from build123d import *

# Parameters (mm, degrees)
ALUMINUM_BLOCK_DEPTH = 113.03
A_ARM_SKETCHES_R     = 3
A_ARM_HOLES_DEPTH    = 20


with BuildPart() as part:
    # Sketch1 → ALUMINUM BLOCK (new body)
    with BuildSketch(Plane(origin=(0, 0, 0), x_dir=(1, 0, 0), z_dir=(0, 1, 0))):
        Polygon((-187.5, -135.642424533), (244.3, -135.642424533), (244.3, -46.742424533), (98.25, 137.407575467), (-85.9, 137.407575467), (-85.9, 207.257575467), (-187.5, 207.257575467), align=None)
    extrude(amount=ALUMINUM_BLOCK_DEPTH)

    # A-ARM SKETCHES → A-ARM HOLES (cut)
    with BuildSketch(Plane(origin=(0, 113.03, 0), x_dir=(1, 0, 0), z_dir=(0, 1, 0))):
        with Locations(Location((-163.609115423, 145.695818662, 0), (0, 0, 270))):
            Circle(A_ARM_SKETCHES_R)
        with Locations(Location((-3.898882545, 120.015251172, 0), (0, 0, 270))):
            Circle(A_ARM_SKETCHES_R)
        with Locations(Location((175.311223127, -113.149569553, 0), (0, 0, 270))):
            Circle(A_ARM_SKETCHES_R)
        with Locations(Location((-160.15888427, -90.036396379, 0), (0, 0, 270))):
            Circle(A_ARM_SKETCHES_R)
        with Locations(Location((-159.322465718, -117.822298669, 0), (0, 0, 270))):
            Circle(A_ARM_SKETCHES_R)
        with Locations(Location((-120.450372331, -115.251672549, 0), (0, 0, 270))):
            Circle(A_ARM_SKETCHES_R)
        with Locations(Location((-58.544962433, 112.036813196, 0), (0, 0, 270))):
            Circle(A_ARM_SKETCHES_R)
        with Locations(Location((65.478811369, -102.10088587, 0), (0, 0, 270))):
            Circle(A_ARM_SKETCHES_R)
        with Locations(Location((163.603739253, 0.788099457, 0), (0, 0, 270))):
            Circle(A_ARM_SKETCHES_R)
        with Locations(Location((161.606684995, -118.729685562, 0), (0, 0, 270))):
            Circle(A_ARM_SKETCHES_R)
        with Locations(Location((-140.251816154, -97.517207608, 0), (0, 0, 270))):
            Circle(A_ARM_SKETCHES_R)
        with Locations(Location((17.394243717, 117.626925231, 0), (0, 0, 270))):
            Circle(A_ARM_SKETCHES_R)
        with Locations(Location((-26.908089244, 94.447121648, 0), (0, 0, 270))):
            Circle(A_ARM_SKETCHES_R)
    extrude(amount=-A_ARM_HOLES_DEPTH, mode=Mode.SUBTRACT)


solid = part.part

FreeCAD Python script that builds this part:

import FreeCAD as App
import Part
import Sketcher

V = App.Vector
Q = App.Units.Quantity


def add_polygon(sketch, points):
    """Adds a closed chain of lines whose ends are joined by coincident constraints."""
    first, n = sketch.GeometryCount, len(points)
    for a, b in zip(points, points[1:] + points[:1]):
        sketch.addGeometry(Part.LineSegment(App.Vector(*a, 0), App.Vector(*b, 0)), False)
    for i in range(n):
        sketch.addConstraint(Sketcher.Constraint("Coincident", first + i, 2, first + (i + 1) % n, 1))

doc = App.newDocument("Part")
body = doc.addObject("PartDesign::Body", "Body")

sketch1 = body.newObject("Sketcher::SketchObject", "Sketch")
sketch1.AttachmentSupport = (doc.getObject("XZ_Plane"), [""])
sketch1.MapMode = "FlatFace"
add_polygon(sketch1, [(-188, 136), (244, 136), (244, 47), (98, -137), (-86, -137), (-86, -207), (-188, -207)])
sketch1.addConstraint([
    Sketcher.Constraint("Horizontal", 0),
    Sketcher.Constraint("Vertical", 1),
    Sketcher.Constraint("Horizontal", 3),
    Sketcher.Constraint("Vertical", 4),
    Sketcher.Constraint("Horizontal", 5),
    Sketcher.Constraint("Vertical", 6),
    Sketcher.Constraint("DistanceX", 0, 1, 0, 2, Q("17 in")),
    Sketcher.Constraint("DistanceX", 5, 2, 5, 1, Q("4 in")),
    Sketcher.Constraint("DistanceY", 1, 2, 1, 1, Q("3.5 in")),
    Sketcher.Constraint("DistanceY", 6, 1, 6, 2, Q("13.5 in")),
    Sketcher.Constraint("DistanceX", 3, 2, 3, 1, Q("7.25 in")),
    Sketcher.Constraint("DistanceY", 4, 2, 4, 1, Q("2.75 in")),
    Sketcher.Constraint("DistanceX", -1, 1, 0, 2, 244.3),
    Sketcher.Constraint("DistanceY", -1, 1, 0, 2, 135.642425),
])
pad1 = body.newObject("PartDesign::Pad", "Pad")
pad1.Profile = sketch1
pad1.Length = Q("4.45 in")
pad1.Reversed = True

sketch2 = body.newObject("Sketcher::SketchObject", "Sketch001")
sketch2.AttachmentSupport = (doc.getObject("XZ_Plane"), [""])
sketch2.MapMode = "FlatFace"
sketch2.AttachmentOffset = App.Placement(V(0, 0, -4.45 * 25.4), App.Rotation())
sketch2.addGeometry([
    Part.Circle(V(-163.6, -145.7, 0), V(0, 0, 1), 3),
    Part.Circle(V(-3.9, -120, 0), V(0, 0, 1), 3),
    Part.Circle(V(175.3, 113.1, 0), V(0, 0, 1), 3),
    Part.Circle(V(-160.2, 90, 0), V(0, 0, 1), 3),
    Part.Circle(V(-159.3, 117.8, 0), V(0, 0, 1), 3),
    Part.Circle(V(-120.5, 115.3, 0), V(0, 0, 1), 3),
    Part.Circle(V(-58.5, -112, 0), V(0, 0, 1), 3),
    Part.Circle(V(65.5, 102.1, 0), V(0, 0, 1), 3),
    Part.Circle(V(163.6, -0.8, 0), V(0, 0, 1), 3),
    Part.Circle(V(161.6, 118.7, 0), V(0, 0, 1), 3),
    Part.Circle(V(-140.3, 97.5, 0), V(0, 0, 1), 3),
    Part.Circle(V(17.4, -117.6, 0), V(0, 0, 1), 3),
    Part.Circle(V(-26.9, -94.4, 0), V(0, 0, 1), 3),
], False)
sketch2.addConstraint([
    Sketcher.Constraint("Equal", 0, 1),
    Sketcher.Constraint("Equal", 1, 2),
    Sketcher.Constraint("Equal", 2, 3),
    Sketcher.Constraint("Equal", 3, 4),
    Sketcher.Constraint("Equal", 4, 5),
    Sketcher.Constraint("Equal", 5, 6),
    Sketcher.Constraint("Equal", 6, 7),
    Sketcher.Constraint("Equal", 7, 8),
    Sketcher.Constraint("Equal", 8, 9),
    Sketcher.Constraint("Equal", 9, 10),
    Sketcher.Constraint("Equal", 10, 11),
    Sketcher.Constraint("Equal", 11, 12),
    Sketcher.Constraint("Diameter", 0, 6.0),
    Sketcher.Constraint("DistanceY", -1, 1, 4, 3, 117.822299),
    Sketcher.Constraint("DistanceY", 8, 3, -1, 1, 0.788099),
    Sketcher.Constraint("DistanceX", 3, 3, 1, 3, 156.260002),
    Sketcher.Constraint("DistanceX", 6, 3, 8, 3, 222.148702),
    Sketcher.Constraint("DistanceY", 7, 3, 9, 3, 16.6288),
    Sketcher.Constraint("DistanceY", 0, 3, -1, 1, 145.695819),
    Sketcher.Constraint("DistanceY", 1, 3, -1, 1, 120.015251),
    Sketcher.Constraint("DistanceY", -1, 1, 2, 3, 113.14957),
    Sketcher.Constraint("DistanceX", -1, 1, 7, 3, 65.478811),
    Sketcher.Constraint("DistanceX", -1, 1, 8, 3, 163.603739),
    Sketcher.Constraint("DistanceX", 12, 3, -1, 1, 26.908089),
    Sketcher.Constraint("DistanceY", 12, 3, -1, 1, 94.447122),
    Sketcher.Constraint("DistanceX", 0, 3, 2, 3, 338.920339),
    Sketcher.Constraint("DistanceX", 0, 3, 3, 3, 3.450231),
    Sketcher.Constraint("DistanceX", 3, 3, 4, 3, 0.836419),
    Sketcher.Constraint("DistanceX", 3, 3, 5, 3, 39.708512),
    Sketcher.Constraint("DistanceY", 0, 3, 5, 3, 260.947491),
    Sketcher.Constraint("DistanceX", 6, 3, 1, 3, 54.64608),
    Sketcher.Constraint("DistanceY", 6, 3, 3, 3, 202.07321),
    Sketcher.Constraint("DistanceY", 6, 3, 4, 3, 229.859112),
    Sketcher.Constraint("DistanceY", 3, 3, 7, 3, 12.064489),
    Sketcher.Constraint("DistanceX", 9, 3, 2, 3, 13.704538),
    Sketcher.Constraint("DistanceX", 3, 3, 10, 3, 19.907068),
    Sketcher.Constraint("DistanceY", 3, 3, 10, 3, 7.480811),
    Sketcher.Constraint("DistanceX", 0, 3, 11, 3, 181.003359),
    Sketcher.Constraint("DistanceY", 11, 3, 7, 3, 219.727811),
])
pocket1 = body.newObject("PartDesign::Pocket", "Pocket")
pocket1.Profile = sketch2
pocket1.Length = 20
pocket1.Reversed = True

doc.recompute()
